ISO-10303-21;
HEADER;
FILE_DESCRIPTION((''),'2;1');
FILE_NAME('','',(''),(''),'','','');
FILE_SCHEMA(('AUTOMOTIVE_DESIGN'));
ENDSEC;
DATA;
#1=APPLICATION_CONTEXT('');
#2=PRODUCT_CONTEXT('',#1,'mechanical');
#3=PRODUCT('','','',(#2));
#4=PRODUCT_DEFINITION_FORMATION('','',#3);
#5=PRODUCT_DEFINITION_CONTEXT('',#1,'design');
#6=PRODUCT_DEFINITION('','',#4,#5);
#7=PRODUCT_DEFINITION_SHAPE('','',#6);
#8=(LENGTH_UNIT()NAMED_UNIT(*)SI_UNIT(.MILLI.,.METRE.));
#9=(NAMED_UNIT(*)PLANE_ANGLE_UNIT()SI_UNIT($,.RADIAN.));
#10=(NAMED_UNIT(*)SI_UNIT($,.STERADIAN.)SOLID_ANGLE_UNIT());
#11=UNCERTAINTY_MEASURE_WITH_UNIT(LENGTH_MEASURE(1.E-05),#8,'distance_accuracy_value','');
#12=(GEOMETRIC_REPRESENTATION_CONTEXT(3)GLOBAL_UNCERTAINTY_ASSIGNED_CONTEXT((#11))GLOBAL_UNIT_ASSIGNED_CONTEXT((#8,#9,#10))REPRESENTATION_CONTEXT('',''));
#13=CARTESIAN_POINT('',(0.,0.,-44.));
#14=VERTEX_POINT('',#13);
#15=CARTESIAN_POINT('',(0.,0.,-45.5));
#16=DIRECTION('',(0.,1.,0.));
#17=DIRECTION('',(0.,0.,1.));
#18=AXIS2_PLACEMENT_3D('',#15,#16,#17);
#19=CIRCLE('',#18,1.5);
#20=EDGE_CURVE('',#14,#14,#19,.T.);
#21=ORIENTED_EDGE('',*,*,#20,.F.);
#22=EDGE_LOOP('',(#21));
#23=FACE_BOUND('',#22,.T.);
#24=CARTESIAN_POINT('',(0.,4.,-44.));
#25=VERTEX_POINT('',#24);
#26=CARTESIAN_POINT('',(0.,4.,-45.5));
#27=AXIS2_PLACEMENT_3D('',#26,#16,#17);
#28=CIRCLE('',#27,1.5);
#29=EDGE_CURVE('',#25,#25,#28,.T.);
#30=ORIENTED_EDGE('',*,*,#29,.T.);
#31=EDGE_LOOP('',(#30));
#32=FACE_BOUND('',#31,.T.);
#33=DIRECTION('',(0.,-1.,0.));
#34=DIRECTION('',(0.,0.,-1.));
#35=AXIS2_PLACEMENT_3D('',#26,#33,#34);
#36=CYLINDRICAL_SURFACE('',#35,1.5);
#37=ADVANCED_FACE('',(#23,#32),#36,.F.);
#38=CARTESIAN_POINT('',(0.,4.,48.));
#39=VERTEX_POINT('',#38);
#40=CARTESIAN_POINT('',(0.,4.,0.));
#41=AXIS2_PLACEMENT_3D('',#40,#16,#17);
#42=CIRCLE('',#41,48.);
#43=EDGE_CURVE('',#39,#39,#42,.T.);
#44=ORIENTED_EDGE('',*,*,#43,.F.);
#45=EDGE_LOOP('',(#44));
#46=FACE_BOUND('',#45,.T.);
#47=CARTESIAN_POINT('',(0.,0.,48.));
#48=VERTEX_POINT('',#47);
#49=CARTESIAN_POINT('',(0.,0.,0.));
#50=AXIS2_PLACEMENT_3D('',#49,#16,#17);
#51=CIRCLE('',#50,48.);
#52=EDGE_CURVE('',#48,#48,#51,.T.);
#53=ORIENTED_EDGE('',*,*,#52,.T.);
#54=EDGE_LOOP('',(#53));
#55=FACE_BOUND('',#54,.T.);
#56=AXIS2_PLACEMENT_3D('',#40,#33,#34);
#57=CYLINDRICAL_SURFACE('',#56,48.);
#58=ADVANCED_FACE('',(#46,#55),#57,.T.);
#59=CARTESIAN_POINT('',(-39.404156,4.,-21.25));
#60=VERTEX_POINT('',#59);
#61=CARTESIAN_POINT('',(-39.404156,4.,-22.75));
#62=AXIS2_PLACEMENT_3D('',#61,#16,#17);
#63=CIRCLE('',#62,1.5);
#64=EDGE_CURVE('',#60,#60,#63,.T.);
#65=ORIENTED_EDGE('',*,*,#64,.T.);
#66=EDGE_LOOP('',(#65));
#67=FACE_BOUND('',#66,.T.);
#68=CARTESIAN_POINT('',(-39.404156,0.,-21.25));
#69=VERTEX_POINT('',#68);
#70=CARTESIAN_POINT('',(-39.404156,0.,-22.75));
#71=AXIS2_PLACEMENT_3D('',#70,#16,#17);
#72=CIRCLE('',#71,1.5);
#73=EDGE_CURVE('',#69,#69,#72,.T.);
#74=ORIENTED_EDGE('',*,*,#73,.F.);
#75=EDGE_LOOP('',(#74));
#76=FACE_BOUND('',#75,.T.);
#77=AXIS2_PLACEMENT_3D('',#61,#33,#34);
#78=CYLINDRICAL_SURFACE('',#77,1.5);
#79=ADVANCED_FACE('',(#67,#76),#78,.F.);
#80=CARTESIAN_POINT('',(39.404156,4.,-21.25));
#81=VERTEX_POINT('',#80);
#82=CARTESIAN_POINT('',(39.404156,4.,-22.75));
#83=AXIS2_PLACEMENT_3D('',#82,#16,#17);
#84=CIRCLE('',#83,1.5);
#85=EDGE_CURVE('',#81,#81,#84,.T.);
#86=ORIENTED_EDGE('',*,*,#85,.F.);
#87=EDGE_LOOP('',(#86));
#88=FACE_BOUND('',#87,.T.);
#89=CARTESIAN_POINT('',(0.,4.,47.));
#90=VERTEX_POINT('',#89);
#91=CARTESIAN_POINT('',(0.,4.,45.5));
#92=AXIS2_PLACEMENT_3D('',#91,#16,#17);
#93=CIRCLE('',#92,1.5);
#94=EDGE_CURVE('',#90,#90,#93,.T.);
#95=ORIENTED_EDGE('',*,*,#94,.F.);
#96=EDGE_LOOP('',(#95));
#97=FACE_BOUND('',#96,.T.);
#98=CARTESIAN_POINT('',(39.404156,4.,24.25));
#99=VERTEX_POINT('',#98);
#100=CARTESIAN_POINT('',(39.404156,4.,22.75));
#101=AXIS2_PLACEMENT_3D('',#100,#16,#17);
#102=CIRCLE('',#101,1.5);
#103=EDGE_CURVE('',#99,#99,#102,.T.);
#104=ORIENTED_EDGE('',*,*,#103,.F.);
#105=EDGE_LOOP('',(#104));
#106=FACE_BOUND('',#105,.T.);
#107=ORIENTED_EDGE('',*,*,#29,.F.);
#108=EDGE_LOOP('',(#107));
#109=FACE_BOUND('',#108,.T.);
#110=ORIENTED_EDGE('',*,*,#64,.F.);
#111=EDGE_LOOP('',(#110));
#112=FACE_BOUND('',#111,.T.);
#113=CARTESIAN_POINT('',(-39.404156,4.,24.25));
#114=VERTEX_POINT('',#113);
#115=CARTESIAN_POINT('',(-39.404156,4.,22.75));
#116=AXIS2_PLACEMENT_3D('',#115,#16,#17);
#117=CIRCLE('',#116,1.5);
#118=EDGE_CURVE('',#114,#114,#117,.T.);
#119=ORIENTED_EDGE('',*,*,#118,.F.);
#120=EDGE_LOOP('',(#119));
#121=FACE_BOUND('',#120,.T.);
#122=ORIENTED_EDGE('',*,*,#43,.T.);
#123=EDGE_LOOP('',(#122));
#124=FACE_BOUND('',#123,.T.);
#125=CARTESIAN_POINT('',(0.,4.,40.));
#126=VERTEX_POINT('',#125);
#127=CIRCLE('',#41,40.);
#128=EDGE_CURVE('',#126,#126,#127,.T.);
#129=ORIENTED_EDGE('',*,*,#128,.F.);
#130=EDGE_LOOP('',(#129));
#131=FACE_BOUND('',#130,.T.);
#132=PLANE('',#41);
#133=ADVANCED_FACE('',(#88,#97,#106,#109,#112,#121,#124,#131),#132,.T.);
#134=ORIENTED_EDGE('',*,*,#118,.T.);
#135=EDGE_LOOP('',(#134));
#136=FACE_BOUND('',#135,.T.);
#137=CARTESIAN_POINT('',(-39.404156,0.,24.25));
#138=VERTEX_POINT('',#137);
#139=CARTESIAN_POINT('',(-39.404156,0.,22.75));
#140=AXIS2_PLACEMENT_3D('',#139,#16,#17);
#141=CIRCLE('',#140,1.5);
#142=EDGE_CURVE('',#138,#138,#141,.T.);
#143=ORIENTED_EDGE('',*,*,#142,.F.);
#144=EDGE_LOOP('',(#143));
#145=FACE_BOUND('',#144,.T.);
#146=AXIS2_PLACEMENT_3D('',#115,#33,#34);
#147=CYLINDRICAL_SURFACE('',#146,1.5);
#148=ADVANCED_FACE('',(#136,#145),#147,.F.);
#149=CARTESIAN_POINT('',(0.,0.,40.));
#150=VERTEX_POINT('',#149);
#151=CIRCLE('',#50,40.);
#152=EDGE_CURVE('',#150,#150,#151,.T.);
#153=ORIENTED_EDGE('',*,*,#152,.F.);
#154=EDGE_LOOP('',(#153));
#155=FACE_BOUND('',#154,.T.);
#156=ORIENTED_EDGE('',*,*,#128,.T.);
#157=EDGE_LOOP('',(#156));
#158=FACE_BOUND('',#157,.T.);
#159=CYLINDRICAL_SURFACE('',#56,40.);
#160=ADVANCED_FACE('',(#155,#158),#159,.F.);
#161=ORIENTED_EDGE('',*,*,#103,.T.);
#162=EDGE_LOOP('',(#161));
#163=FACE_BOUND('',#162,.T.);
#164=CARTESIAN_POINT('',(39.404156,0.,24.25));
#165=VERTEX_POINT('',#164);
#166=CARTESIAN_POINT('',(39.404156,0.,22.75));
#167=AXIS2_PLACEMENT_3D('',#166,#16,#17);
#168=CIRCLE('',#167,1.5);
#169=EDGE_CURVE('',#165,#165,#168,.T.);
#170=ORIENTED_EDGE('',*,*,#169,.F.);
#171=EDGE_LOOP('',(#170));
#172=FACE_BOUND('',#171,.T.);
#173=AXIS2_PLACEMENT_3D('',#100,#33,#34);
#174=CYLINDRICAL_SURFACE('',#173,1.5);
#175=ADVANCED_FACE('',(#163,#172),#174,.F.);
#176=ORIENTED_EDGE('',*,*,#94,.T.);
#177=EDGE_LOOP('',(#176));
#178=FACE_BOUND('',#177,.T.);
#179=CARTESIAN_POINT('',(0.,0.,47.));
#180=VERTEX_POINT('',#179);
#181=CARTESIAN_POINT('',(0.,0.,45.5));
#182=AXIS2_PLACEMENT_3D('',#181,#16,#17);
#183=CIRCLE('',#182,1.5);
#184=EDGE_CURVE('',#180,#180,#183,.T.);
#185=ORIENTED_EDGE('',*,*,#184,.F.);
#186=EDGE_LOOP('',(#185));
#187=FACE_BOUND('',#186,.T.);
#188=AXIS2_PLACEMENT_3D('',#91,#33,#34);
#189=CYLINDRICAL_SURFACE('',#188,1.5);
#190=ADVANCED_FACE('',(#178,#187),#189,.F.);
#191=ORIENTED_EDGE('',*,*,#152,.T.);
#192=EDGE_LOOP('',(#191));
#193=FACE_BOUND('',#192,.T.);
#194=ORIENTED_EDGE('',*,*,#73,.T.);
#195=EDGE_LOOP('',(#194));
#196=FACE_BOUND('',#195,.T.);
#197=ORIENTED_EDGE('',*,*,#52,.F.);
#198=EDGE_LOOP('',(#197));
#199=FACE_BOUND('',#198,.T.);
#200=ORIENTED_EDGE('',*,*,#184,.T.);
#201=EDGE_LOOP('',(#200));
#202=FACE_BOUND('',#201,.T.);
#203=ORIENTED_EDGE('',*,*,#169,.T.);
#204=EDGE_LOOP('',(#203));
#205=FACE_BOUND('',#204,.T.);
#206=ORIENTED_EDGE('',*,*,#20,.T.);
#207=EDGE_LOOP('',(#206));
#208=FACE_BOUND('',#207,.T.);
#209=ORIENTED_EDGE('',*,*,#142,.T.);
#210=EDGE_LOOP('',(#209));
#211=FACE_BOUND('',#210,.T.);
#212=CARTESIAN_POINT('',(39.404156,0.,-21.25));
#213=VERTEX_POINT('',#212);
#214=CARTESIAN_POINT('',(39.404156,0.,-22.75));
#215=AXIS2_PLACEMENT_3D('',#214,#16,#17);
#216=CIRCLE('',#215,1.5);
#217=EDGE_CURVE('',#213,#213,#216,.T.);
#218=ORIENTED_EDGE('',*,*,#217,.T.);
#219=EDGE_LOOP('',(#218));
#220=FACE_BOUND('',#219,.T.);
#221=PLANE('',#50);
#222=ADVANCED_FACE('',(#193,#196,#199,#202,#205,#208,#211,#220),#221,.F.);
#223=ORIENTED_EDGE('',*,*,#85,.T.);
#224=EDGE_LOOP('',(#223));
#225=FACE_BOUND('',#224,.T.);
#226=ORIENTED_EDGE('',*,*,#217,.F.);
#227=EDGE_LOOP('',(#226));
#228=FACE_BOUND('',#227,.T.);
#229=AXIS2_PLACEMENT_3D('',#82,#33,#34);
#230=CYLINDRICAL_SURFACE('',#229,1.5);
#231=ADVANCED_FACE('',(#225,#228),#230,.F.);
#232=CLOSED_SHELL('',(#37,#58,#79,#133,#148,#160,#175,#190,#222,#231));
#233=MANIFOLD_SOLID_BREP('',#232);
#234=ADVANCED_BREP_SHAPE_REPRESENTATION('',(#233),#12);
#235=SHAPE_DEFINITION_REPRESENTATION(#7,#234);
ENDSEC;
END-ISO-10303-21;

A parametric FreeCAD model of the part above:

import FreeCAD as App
import Part
import Sketcher

doc = App.newDocument("Part")
body = doc.addObject("PartDesign::Body", "Body")

# Sketch on XZ plane
sketch1 = body.newObject("Sketcher::SketchObject", "Sketch")
sketch1.AttachmentSupport = (doc.getObject("XZ_Plane"), [""])
sketch1.MapMode = "FlatFace"
sketch1.addGeometry([
    Part.Circle(App.Vector(0, 0, 0), App.Vector(0, 0, 1), 48),  # 0
    Part.Circle(App.Vector(-39.4, -22.8, 0), App.Vector(0, 0, 1), 1.5),  # 1
    Part.Circle(App.Vector(0, -45.5, 0), App.Vector(0, 0, 1), 1.5),  # 2
    Part.Circle(App.Vector(-39.4, 22.8, 0), App.Vector(0, 0, 1), 1.5),  # 3
    Part.Circle(App.Vector(39.4, -22.8, 0), App.Vector(0, 0, 1), 1.5),  # 4
    Part.Circle(App.Vector(0, 0, 0), App.Vector(0, 0, 1), 40),  # 5
    Part.Circle(App.Vector(0, 45.5, 0), App.Vector(0, 0, 1), 1.5),  # 6
    Part.Circle(App.Vector(39.4, 22.8, 0), App.Vector(0, 0, 1), 1.5),  # 7
], False)
sketch1.addConstraint([
    Sketcher.Constraint("Coincident", 0, 3, -1, 1),
    Sketcher.Constraint("Coincident", 5, 3, -1, 1),
    Sketcher.Constraint("Equal", 1, 2),
    Sketcher.Constraint("Equal", 2, 3),
    Sketcher.Constraint("Equal", 3, 4),
    Sketcher.Constraint("Equal", 4, 6),
    Sketcher.Constraint("Equal", 6, 7),
    Sketcher.Constraint("Symmetric", 3, 3, 4, 3, -1, 1),
    Sketcher.Constraint("Symmetric", 2, 3, 6, 3, -1, 1),
    Sketcher.Constraint("Symmetric", 1, 3, 7, 3, -1, 1),
    Sketcher.Constraint("Symmetric", 1, 3, 4, 3, -2),
    Sketcher.Constraint("PointOnObject", 2, 3, -2),
    Sketcher.Constraint("Diameter", 0, 96.0),
    Sketcher.Constraint("Diameter", 1, 3.0),
    Sketcher.Constraint("Diameter", 5, 80.0),
    Sketcher.Constraint("DistanceY", 2, 3, -1, 1, 45.5),
    Sketcher.Constraint("DistanceY", 1, 3, 3, 3, 45.5),
    Sketcher.Constraint("DistanceX", 1, 3, 4, 3, 78.808312),
])
pad1 = body.newObject("PartDesign::Pad", "Pad")
pad1.Profile = sketch1
pad1.Length = 4
pad1.Reversed = True

doc.recompute()
